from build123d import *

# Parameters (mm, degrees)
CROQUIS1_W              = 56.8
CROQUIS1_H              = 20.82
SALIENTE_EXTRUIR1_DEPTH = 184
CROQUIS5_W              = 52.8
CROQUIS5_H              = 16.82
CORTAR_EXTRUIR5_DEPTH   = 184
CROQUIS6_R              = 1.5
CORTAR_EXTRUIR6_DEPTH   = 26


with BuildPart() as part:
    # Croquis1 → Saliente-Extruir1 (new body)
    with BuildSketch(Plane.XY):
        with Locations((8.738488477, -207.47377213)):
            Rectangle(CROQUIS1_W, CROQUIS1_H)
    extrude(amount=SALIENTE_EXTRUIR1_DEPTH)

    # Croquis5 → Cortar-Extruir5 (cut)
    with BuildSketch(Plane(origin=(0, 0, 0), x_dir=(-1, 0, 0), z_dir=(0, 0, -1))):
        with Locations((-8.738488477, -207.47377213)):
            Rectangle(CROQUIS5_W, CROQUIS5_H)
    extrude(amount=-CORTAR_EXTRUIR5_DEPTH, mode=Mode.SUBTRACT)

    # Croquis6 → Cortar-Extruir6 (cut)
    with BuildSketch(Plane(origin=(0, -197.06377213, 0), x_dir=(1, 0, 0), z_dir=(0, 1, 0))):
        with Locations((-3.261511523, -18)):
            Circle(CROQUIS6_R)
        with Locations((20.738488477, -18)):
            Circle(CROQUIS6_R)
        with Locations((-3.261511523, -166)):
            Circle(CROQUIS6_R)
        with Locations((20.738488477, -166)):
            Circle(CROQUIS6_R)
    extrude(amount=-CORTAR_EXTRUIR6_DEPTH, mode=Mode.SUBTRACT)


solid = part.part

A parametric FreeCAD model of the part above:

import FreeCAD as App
import Part
import Sketcher


def add_polygon(sketch, points):
    """Adds a closed chain of lines whose ends are joined by coincident constraints."""
    first, n = sketch.GeometryCount, len(points)
    for a, b in zip(points, points[1:] + points[:1]):
        sketch.addGeometry(Part.LineSegment(App.Vector(*a, 0), App.Vector(*b, 0)), False)
    for i in range(n):
        sketch.addConstraint(Sketcher.Constraint("Coincident", first + i, 2, first + (i + 1) % n, 1))

doc = App.newDocument("Part")
params = doc.addObject("Spreadsheet::Sheet", "Params")
for row, (alias, value) in enumerate([
    ("sketch1_width", "56.8 mm"),
    ("sketch1_height", "20.82 mm"),
    ("pad1_length", "184 mm"),
    ("sketch2_width", "52.8 mm"),
    ("sketch2_height", "16.82 mm"),
    ("pocket1_length", "184 mm"),
    ("sketch3_diameter", "3 mm"),
    ("pocket2_length", "26 mm"),
], start=1):
    params.set(f"A{row}", alias)
    params.set(f"B{row}", "=" + value)
    params.setAlias(f"B{row}", alias)

body = doc.addObject("PartDesign::Body", "Body")

# Sketch on XY plane
sketch1 = doc.addObject("Sketcher::SketchObject", "Sketch")
body.addObject(sketch1)
sketch1.AttachmentSupport = (doc.XY_Plane, [""])
sketch1.MapMode = "FlatFace"
add_polygon(sketch1, [(-20, -197), (-20, -218), (37, -218), (37, -197)])  # lines 0-3
sketch1.addConstraint([
    Sketcher.Constraint("Vertical", 0),
    Sketcher.Constraint("Horizontal", 1),
    Sketcher.Constraint("Vertical", 2),
    Sketcher.Constraint("Horizontal", 3),
    Sketcher.Constraint("DistanceX", 1, 1, 1, 2, 56.8),
    Sketcher.Constraint("DistanceY", 0, 2, 0, 1, 20.82),
    Sketcher.Constraint("DistanceX", 0, 2, -1, 1, 19.661512),
    Sketcher.Constraint("DistanceY", 0, 2, -1, 1, 217.883772),
])
sketch1.setExpression("Constraints[8]", "Params.sketch1_width")
sketch1.setExpression("Constraints[9]", "Params.sketch1_height")
pad1 = doc.addObject("PartDesign::Pad", "Pad")
body.addObject(pad1)
pad1.Profile = sketch1
pad1.setExpression("Length", "Params.pad1_length")

# Sketch on XY plane
sketch2 = doc.addObject("Sketcher::SketchObject", "Sketch001")
body.addObject(sketch2)
sketch2.AttachmentSupport = (doc.XY_Plane, [""])
sketch2.MapMode = "FlatFace"
add_polygon(sketch2, [(35, -199), (35, -216), (-18, -216), (-18, -199)])  # lines 0-3
sketch2.addConstraint([
    Sketcher.Constraint("Vertical", 0),
    Sketcher.Constraint("Horizontal", 1),
    Sketcher.Constraint("Vertical", 2),
    Sketcher.Constraint("Horizontal", 3),
    Sketcher.Constraint("DistanceX", 1, 2, 1, 1, 52.8),
    Sketcher.Constraint("DistanceY", 0, 2, 0, 1, 16.82),
    Sketcher.Constraint("DistanceX", -1, 1, 0, 2, 35.138488),
    Sketcher.Constraint("DistanceY", 0, 2, -1, 1, 215.883772),
])
sketch2.setExpression("Constraints[8]", "Params.sketch2_width")
sketch2.setExpression("Constraints[9]", "Params.sketch2_height")
pocket1 = doc.addObject("PartDesign::Pocket", "Pocket")
body.addObject(pocket1)
pocket1.Profile = sketch2
pocket1.setExpression("Length", "Params.pocket1_length")
pocket1.Reversed = True

# Sketch on XZ plane
sketch3 = doc.addObject("Sketcher::SketchObject", "Sketch002")
body.addObject(sketch3)
sketch3.AttachmentSupport = (doc.XZ_Plane, [""])
sketch3.MapMode = "FlatFace"
sketch3.AttachmentOffset = App.Placement(App.Vector(0, 0, 197.063772), App.Rotation())
sketch3.addGeometry([
    Part.Circle(App.Vector(-3.3, 18, 0), App.Vector(0, 0, 1), 1.5),
    Part.Circle(App.Vector(20.7, 18, 0), App.Vector(0, 0, 1), 1.5),
    Part.Circle(App.Vector(-3.3, 166, 0), App.Vector(0, 0, 1), 1.5),
    Part.Circle(App.Vector(20.7, 166, 0), App.Vector(0, 0, 1), 1.5),
], False)
sketch3.addConstraint([
    Sketcher.Constraint("Equal", 0, 1),
    Sketcher.Constraint("Equal", 1, 2),
    Sketcher.Constraint("Equal", 2, 3),
    Sketcher.Constraint("Horizontal", 0, 3, 1, 3),
    Sketcher.Constraint("Horizontal", 2, 3, 3, 3),
    Sketcher.Constraint("Vertical", 0, 3, 2, 3),
    Sketcher.Constraint("Vertical", 1, 3, 3, 3),
    Sketcher.Constraint("Diameter", 0, 3.0),
    Sketcher.Constraint("DistanceY", -1, 1, 0, 3, 18.0),
    Sketcher.Constraint("DistanceY", -1, 1, 2, 3, 166.0),
    Sketcher.Constraint("DistanceX", 0, 3, 1, 3, 24.0),
    Sketcher.Constraint("DistanceX", 0, 3, -1, 1, 3.261512),
])
sketch3.setExpression("Constraints[7]", "Params.sketch3_diameter")
pocket2 = doc.addObject("PartDesign::Pocket", "Pocket001")
body.addObject(pocket2)
pocket2.Profile = sketch3
pocket2.setExpression("Length", "Params.pocket2_length")
pocket2.Reversed = True

doc.recompute()
